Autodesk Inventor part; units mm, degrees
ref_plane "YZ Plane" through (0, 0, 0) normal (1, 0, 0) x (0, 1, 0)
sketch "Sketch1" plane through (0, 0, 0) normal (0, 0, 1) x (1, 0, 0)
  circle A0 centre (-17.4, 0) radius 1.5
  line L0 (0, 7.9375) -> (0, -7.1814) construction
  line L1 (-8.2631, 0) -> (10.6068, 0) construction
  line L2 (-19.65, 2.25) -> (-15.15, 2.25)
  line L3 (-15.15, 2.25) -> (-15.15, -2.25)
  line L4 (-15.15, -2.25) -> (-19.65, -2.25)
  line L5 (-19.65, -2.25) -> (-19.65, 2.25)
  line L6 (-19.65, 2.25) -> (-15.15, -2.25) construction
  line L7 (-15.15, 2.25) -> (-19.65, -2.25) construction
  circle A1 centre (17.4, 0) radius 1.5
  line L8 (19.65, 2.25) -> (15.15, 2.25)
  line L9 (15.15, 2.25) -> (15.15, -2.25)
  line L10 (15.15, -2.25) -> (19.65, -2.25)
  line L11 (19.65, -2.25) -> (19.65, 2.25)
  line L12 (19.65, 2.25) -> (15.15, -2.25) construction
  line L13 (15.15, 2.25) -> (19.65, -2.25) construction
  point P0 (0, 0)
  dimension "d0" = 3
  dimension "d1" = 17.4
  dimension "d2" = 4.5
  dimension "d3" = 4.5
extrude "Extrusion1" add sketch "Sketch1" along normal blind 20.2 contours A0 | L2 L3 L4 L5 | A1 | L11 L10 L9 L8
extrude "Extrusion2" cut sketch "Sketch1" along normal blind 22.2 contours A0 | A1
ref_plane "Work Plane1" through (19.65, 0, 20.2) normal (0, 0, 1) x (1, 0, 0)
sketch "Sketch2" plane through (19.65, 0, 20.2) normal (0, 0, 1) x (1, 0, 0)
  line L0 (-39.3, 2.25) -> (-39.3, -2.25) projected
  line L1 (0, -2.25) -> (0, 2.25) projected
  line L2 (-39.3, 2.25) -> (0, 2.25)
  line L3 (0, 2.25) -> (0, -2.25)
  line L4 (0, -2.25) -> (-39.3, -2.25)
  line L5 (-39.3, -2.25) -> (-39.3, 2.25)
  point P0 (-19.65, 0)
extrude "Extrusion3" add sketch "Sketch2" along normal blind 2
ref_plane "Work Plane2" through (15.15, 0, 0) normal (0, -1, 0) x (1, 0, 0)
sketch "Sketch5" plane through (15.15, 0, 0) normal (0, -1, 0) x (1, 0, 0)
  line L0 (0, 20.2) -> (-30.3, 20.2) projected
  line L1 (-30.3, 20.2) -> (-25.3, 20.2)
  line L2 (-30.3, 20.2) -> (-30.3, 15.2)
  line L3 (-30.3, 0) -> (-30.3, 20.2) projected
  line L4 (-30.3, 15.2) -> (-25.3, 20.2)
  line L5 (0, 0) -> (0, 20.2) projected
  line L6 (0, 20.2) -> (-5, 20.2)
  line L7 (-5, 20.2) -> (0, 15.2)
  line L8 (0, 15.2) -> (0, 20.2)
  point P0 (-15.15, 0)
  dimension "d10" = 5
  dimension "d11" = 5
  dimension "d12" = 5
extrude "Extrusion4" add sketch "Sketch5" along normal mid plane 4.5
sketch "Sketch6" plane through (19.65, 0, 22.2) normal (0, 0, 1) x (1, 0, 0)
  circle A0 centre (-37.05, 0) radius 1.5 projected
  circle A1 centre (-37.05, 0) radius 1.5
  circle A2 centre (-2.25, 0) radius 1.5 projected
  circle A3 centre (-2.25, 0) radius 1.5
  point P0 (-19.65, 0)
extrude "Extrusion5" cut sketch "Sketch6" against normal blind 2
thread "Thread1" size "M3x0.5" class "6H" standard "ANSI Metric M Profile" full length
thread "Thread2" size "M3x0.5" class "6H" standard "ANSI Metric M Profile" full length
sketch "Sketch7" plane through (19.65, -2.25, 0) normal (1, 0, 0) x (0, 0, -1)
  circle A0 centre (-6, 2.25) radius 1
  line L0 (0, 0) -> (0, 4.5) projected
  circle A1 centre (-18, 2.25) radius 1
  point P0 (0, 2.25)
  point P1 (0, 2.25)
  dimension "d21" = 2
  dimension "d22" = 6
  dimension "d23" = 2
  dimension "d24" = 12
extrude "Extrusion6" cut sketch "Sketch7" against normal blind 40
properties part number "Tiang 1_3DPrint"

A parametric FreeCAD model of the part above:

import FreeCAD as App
import Part
import Sketcher
from FreeCAD import Vector

doc = App.newDocument("Part")
params = doc.addObject("Spreadsheet::Sheet", "Params")
for row, (alias, value) in enumerate([
    ("sketch1_width", "4.5 mm"),
    ("pad1_length", "20.2 mm"),
    ("sketch2_diameter", "3 mm"),
    ("pocket1_length", "22.2 mm"),
    ("sketch3_width", "39.3 mm"),
    ("sketch3_height", "4.5 mm"),
    ("pad2_length", "2 mm"),
    ("sketch4_width", "5 mm"),
    ("pad3_length", "4.5 mm"),
    ("sketch5_diameter", "3 mm"),
    ("pocket2_length", "2 mm"),
    ("sketch6_diameter", "2 mm"),
    ("pocket3_length", "40 mm"),
], start=1):
    params.set(f"A{row}", alias)
    params.set(f"B{row}", "=" + value)
    params.setAlias(f"B{row}", alias)

body = doc.addObject("PartDesign::Body", "Body")
body.AllowCompound = True

# Sketch on XY plane
sketch1 = body.newObject("Sketcher::SketchObject", "Sketch")
sketch1.AttachmentSupport = (doc.getObject("XY_Plane"), [""])
sketch1.MapMode = "FlatFace"
sketch1.addGeometry([
    Part.LineSegment(Vector(-15.2, 2.2, 0), Vector(-19.6, 2.2, 0)),  # 0
    Part.LineSegment(Vector(-19.6, 2.2, 0), Vector(-19.6, -2.2, 0)),  # 1
    Part.LineSegment(Vector(-19.6, -2.2, 0), Vector(-15.2, -2.2, 0)),  # 2
    Part.LineSegment(Vector(-15.2, -2.2, 0), Vector(-15.2, 2.2, 0)),  # 3
    Part.LineSegment(Vector(19.6, -2.2, 0), Vector(19.6, 2.2, 0)),  # 4
    Part.LineSegment(Vector(19.6, 2.2, 0), Vector(15.2, 2.2, 0)),  # 5
    Part.LineSegment(Vector(15.2, 2.2, 0), Vector(15.2, -2.2, 0)),  # 6
    Part.LineSegment(Vector(15.2, -2.2, 0), Vector(19.6, -2.2, 0)),  # 7
], False)
sketch1.addConstraint([
    Sketcher.Constraint("Coincident", 0, 2, 1, 1),
    Sketcher.Constraint("Coincident", 1, 2, 2, 1),
    Sketcher.Constraint("Coincident", 2, 2, 3, 1),
    Sketcher.Constraint("Coincident", 3, 2, 0, 1),
    Sketcher.Constraint("Coincident", 4, 2, 5, 1),
    Sketcher.Constraint("Coincident", 5, 2, 6, 1),
    Sketcher.Constraint("Coincident", 6, 2, 7, 1),
    Sketcher.Constraint("Coincident", 7, 2, 4, 1),
    Sketcher.Constraint("Horizontal", 0),
    Sketcher.Constraint("Vertical", 1),
    Sketcher.Constraint("Horizontal", 2),
    Sketcher.Constraint("Vertical", 3),
    Sketcher.Constraint("Vertical", 4),
    Sketcher.Constraint("Horizontal", 5),
    Sketcher.Constraint("Vertical", 6),
    Sketcher.Constraint("Horizontal", 7),
    Sketcher.Constraint("Symmetric", 1, 2, 4, 2, -1, 1),
    Sketcher.Constraint("Symmetric", 3, 2, 6, 2, -1, 1),
    Sketcher.Constraint("Horizontal", 3, 2, 4, 2),
    Sketcher.Constraint("Equal", 7, 1),
    Sketcher.Constraint("DistanceX", 0, 2, 0, 1, 4.5),
    Sketcher.Constraint("DistanceX", 3, 2, 4, 2, 34.8),
])
sketch1.setExpression("Constraints[20]", "Params.sketch1_width")
pad1 = body.newObject("PartDesign::Pad", "Pad")
pad1.Profile = sketch1
pad1.setExpression("Length", "Params.pad1_length")

# Sketch on XY plane
sketch2 = body.newObject("Sketcher::SketchObject", "Sketch001")
sketch2.AttachmentSupport = (doc.getObject("XY_Plane"), [""])
sketch2.MapMode = "FlatFace"
sketch2.addGeometry([
    Part.Circle(Vector(-17.4, 0, 0), Vector(0, 0, 1), 1.5),
    Part.Circle(Vector(17.4, 0, 0), Vector(0, 0, 1), 1.5),
], False)
sketch2.addConstraint([
    Sketcher.Constraint("Equal", 0, 1),
    Sketcher.Constraint("Symmetric", 0, 3, 1, 3, -1, 1),
    Sketcher.Constraint("PointOnObject", 0, 3, -1),
    Sketcher.Constraint("Diameter", 0, 3.0),
    Sketcher.Constraint("DistanceX", 0, 3, -1, 1, 17.4),
])
sketch2.setExpression("Constraints[3]", "Params.sketch2_diameter")
pocket1 = body.newObject("PartDesign::Pocket", "Pocket")
pocket1.Profile = sketch2
pocket1.setExpression("Length", "Params.pocket1_length")
pocket1.Reversed = True

# Sketch on XY plane
sketch3 = body.newObject("Sketcher::SketchObject", "Sketch002")
sketch3.AttachmentSupport = (doc.getObject("XY_Plane"), [""])
sketch3.MapMode = "FlatFace"
sketch3.AttachmentOffset = App.Placement(Vector(0, 0, 20.2), App.Rotation())
sketch3.addGeometry([
    Part.LineSegment(Vector(19.6, 2.2, 0), Vector(-19.6, 2.2, 0)),
    Part.LineSegment(Vector(-19.6, 2.2, 0), Vector(-19.6, -2.2, 0)),
    Part.LineSegment(Vector(-19.6, -2.2, 0), Vector(19.6, -2.2, 0)),
    Part.LineSegment(Vector(19.6, -2.2, 0), Vector(19.6, 2.2, 0)),
], False)
sketch3.addConstraint([
    Sketcher.Constraint("Coincident", 0, 2, 1, 1),
    Sketcher.Constraint("Coincident", 1, 2, 2, 1),
    Sketcher.Constraint("Coincident", 2, 2, 3, 1),
    Sketcher.Constraint("Coincident", 3, 2, 0, 1),
    Sketcher.Constraint("Horizontal", 0),
    Sketcher.Constraint("Vertical", 1),
    Sketcher.Constraint("Horizontal", 2),
    Sketcher.Constraint("Vertical", 3),
    Sketcher.Constraint("Symmetric", 0, 2, 2, 2, -1, 1),
    Sketcher.Constraint("DistanceX", 0, 2, 0, 1, 39.3),
    Sketcher.Constraint("DistanceY", 1, 2, 1, 1, 4.5),
])
sketch3.setExpression("Constraints[9]", "Params.sketch3_width")
sketch3.setExpression("Constraints[10]", "Params.sketch3_height")
pad2 = body.newObject("PartDesign::Pad", "Pad001")
pad2.Profile = sketch3
pad2.setExpression("Length", "Params.pad2_length")

# Sketch on XZ plane
sketch4 = body.newObject("Sketcher::SketchObject", "Sketch003")
sketch4.AttachmentSupport = (doc.getObject("XZ_Plane"), [""])
sketch4.MapMode = "FlatFace"
sketch4.addGeometry([
    Part.LineSegment(Vector(15, 15, 0), Vector(15, 20, 0)),  # 0
    Part.LineSegment(Vector(15, 20, 0), Vector(10, 20, 0)),  # 1
    Part.LineSegment(Vector(10, 20, 0), Vector(15, 15, 0)),  # 2
    Part.LineSegment(Vector(-15, 15, 0), Vector(-10, 20, 0)),  # 3
    Part.LineSegment(Vector(-10, 20, 0), Vector(-15, 20, 0)),  # 4
    Part.LineSegment(Vector(-15, 20, 0), Vector(-15, 15, 0)),  # 5
], False)
sketch4.addConstraint([
    Sketcher.Constraint("Coincident", 0, 2, 1, 1),
    Sketcher.Constraint("Coincident", 1, 2, 2, 1),
    Sketcher.Constraint("Coincident", 2, 2, 0, 1),
    Sketcher.Constraint("Coincident", 3, 2, 4, 1),
    Sketcher.Constraint("Coincident", 4, 2, 5, 1),
    Sketcher.Constraint("Coincident", 5, 2, 3, 1),
    Sketcher.Constraint("Vertical", 0),
    Sketcher.Constraint("Horizontal", 1),
    Sketcher.Constraint("Horizontal", 4),
    Sketcher.Constraint("Vertical", 5),
    Sketcher.Constraint("Symmetric", 1, 2, 3, 2, -2),
    Sketcher.Constraint("Symmetric", 2, 2, 5, 2, -2),
    Sketcher.Constraint("Perpendicular", 2, 3),
    Sketcher.Constraint("DistanceX", 1, 2, 1, 1, 5.0),
    Sketcher.Constraint("DistanceY", -1, 1, 0, 2, 20.2),
    Sketcher.Constraint("DistanceX", 3, 2, 1, 2, 20.3),
])
sketch4.setExpression("Constraints[13]", "Params.sketch4_width")
pad3 = body.newObject("PartDesign::Pad", "Pad002")
pad3.Profile = sketch4
pad3.setExpression("Length", "Params.pad3_length")
pad3.Midplane = True

# Sketch on XY plane
sketch5 = body.newObject("Sketcher::SketchObject", "Sketch004")
sketch5.AttachmentSupport = (doc.getObject("XY_Plane"), [""])
sketch5.MapMode = "FlatFace"
sketch5.AttachmentOffset = App.Placement(Vector(0, 0, 22.2), App.Rotation())
sketch5.addGeometry([
    Part.Circle(Vector(-17.4, 0, 0), Vector(0, 0, 1), 1.5),
    Part.Circle(Vector(17.4, 0, 0), Vector(0, 0, 1), 1.5),
], False)
sketch5.addConstraint([
    Sketcher.Constraint("Equal", 0, 1),
    Sketcher.Constraint("Symmetric", 0, 3, 1, 3, -1, 1),
    Sketcher.Constraint("PointOnObject", 0, 3, -1),
    Sketcher.Constraint("Diameter", 0, 3.0),
    Sketcher.Constraint("DistanceX", 0, 3, -1, 1, 17.4),
])
sketch5.setExpression("Constraints[3]", "Params.sketch5_diameter")
pocket2 = body.newObject("PartDesign::Pocket", "Pocket001")
pocket2.Profile = sketch5
pocket2.setExpression("Length", "Params.pocket2_length")

# Sketch on YZ plane
sketch6 = body.newObject("Sketcher::SketchObject", "Sketch005")
sketch6.AttachmentSupport = (doc.getObject("YZ_Plane"), [""])
sketch6.MapMode = "FlatFace"
sketch6.AttachmentOffset = App.Placement(Vector(0, 0, 19.65), App.Rotation())
sketch6.addGeometry([
    Part.Circle(Vector(0, 6, 0), Vector(0, 0, 1), 1),
    Part.Circle(Vector(0, 18, 0), Vector(0, 0, 1), 1),
], False)
sketch6.addConstraint([
    Sketcher.Constraint("Equal", 0, 1),
    Sketcher.Constraint("PointOnObject", 0, 3, -2),
    Sketcher.Constraint("PointOnObject", 1, 3, -2),
    Sketcher.Constraint("Diameter", 0, 2.0),
    Sketcher.Constraint("DistanceY", -1, 1, 0, 3, 6.0),
    Sketcher.Constraint("DistanceY", 0, 3, 1, 3, 12.0),
])
sketch6.setExpression("Constraints[3]", "Params.sketch6_diameter")
pocket3 = body.newObject("PartDesign::Pocket", "Pocket002")
pocket3.Profile = sketch6
pocket3.setExpression("Length", "Params.pocket3_length")

doc.recompute()
